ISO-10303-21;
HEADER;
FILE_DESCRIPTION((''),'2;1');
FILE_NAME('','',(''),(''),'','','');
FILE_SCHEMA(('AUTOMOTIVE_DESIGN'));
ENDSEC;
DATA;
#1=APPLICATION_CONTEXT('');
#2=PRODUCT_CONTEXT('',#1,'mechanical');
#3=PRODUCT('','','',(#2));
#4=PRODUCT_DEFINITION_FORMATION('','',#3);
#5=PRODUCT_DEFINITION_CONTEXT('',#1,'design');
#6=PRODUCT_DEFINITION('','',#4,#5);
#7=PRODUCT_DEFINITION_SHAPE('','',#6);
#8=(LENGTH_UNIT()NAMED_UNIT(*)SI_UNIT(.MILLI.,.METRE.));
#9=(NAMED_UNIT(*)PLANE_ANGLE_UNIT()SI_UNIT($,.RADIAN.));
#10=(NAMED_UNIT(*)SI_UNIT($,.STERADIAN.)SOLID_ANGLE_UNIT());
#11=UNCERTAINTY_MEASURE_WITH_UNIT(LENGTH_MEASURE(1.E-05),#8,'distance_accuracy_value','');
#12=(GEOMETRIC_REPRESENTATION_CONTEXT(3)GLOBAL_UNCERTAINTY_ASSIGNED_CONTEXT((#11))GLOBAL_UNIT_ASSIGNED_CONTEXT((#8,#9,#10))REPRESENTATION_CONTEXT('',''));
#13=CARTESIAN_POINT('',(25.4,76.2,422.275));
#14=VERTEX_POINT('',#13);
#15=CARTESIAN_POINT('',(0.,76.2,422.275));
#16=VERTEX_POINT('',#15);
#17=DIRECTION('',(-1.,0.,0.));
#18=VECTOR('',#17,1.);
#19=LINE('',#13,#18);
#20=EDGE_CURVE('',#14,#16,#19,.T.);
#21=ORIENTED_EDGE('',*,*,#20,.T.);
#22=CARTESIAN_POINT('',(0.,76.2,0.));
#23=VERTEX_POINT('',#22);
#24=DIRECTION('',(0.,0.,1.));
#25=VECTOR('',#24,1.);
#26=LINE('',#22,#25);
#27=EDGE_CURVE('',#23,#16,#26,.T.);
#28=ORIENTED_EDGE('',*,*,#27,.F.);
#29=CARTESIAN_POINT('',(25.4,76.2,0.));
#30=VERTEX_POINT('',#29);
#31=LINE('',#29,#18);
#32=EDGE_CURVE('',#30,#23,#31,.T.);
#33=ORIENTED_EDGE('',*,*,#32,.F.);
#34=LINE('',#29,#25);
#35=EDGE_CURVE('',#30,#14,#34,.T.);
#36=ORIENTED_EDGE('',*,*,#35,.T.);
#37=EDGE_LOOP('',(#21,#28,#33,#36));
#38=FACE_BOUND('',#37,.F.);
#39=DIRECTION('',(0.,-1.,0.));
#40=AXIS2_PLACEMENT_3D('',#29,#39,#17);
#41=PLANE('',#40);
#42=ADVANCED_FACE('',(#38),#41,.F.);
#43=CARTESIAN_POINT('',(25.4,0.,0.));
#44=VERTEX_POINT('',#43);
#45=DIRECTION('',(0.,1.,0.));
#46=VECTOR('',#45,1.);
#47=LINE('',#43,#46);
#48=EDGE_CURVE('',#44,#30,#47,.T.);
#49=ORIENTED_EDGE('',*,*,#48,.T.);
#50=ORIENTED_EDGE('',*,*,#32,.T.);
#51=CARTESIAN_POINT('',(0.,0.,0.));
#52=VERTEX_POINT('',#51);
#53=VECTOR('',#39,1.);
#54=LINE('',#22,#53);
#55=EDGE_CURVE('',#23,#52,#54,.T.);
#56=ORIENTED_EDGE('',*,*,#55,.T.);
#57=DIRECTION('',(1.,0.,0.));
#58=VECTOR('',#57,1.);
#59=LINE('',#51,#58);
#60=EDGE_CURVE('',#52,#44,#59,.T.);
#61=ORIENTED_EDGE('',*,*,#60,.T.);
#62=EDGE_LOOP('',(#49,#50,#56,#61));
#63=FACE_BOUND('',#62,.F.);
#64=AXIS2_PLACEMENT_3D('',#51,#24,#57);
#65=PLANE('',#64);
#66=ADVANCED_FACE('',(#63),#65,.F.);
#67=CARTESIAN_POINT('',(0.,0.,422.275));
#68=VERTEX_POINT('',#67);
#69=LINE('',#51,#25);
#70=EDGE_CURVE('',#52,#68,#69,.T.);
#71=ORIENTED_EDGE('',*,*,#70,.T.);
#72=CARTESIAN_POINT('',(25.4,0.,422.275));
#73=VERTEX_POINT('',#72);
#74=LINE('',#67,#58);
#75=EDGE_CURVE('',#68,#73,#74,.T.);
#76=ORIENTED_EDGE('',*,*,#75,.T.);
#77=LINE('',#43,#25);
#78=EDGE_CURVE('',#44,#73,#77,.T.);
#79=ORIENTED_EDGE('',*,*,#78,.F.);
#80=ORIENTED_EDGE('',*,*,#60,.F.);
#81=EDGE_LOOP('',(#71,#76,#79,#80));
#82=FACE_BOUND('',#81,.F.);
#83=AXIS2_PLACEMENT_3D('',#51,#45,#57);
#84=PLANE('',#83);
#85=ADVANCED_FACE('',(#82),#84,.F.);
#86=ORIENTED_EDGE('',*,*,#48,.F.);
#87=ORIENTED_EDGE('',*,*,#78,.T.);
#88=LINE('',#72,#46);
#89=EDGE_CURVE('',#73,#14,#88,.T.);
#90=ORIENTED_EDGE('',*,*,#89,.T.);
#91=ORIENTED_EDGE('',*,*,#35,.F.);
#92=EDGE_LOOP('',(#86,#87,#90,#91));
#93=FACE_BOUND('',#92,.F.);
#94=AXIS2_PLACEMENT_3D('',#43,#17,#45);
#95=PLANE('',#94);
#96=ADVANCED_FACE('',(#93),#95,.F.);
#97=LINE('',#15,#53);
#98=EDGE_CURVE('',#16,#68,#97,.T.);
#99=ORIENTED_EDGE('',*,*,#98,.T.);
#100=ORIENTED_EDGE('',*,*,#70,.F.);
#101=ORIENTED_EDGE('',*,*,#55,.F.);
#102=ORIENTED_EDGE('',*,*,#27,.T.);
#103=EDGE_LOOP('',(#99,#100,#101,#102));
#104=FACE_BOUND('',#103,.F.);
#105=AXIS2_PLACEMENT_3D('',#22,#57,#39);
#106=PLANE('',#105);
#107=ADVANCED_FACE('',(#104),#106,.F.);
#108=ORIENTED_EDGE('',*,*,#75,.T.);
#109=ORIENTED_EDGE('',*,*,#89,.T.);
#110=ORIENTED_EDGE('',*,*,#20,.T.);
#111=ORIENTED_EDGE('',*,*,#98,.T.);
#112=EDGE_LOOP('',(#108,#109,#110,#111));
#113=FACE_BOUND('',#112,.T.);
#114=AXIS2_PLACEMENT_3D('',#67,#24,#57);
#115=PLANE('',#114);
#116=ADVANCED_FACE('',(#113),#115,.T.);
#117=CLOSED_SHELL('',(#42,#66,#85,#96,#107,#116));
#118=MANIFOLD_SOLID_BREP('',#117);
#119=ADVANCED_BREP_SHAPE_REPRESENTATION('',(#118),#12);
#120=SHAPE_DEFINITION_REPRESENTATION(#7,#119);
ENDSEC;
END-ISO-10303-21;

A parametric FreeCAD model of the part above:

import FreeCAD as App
import Part
import Sketcher
from FreeCAD import Vector
Q = App.Units.Quantity

doc = App.newDocument("Part")
params = doc.addObject("Spreadsheet::Sheet", "Params")
for row, (alias, value) in enumerate([
    ("sketch1_width", "1 in"),
    ("sketch1_height", "3 in"),
    ("pad1_length", "16.625 in"),
], start=1):
    params.set(f"A{row}", alias)
    params.set(f"B{row}", "=" + value)
    params.setAlias(f"B{row}", alias)

body = doc.addObject("PartDesign::Body", "Body")

sketch1 = body.newObject("Sketcher::SketchObject", "Sketch")
sketch1.AttachmentSupport = (doc.getObject("XY_Plane"), [""])
sketch1.MapMode = "FlatFace"
sketch1.addGeometry([
    Part.LineSegment(Vector(0, 76, 0), Vector(0, 0, 0)),
    Part.LineSegment(Vector(0, 0, 0), Vector(25, 0, 0)),
    Part.LineSegment(Vector(25, 0, 0), Vector(25, 76, 0)),
    Part.LineSegment(Vector(25, 76, 0), Vector(0, 76, 0)),
], False)
sketch1.addConstraint([
    Sketcher.Constraint("Coincident", 0, 2, 1, 1),
    Sketcher.Constraint("Coincident", 1, 2, 2, 1),
    Sketcher.Constraint("Coincident", 2, 2, 3, 1),
    Sketcher.Constraint("Coincident", 3, 2, 0, 1),
    Sketcher.Constraint("Vertical", 0),
    Sketcher.Constraint("Horizontal", 1),
    Sketcher.Constraint("Vertical", 2),
    Sketcher.Constraint("Horizontal", 3),
    Sketcher.Constraint("Coincident", 0, 2, -1, 1),
    Sketcher.Constraint("DistanceX", 1, 1, 1, 2, Q("1 in")),
    Sketcher.Constraint("DistanceY", 0, 2, 0, 1, Q("3 in")),
])
sketch1.setExpression("Constraints[9]", "Params.sketch1_width")
sketch1.setExpression("Constraints[10]", "Params.sketch1_height")
pad1 = body.newObject("PartDesign::Pad", "Pad")
pad1.Profile = sketch1
pad1.setExpression("Length", "Params.pad1_length")

doc.recompute()
